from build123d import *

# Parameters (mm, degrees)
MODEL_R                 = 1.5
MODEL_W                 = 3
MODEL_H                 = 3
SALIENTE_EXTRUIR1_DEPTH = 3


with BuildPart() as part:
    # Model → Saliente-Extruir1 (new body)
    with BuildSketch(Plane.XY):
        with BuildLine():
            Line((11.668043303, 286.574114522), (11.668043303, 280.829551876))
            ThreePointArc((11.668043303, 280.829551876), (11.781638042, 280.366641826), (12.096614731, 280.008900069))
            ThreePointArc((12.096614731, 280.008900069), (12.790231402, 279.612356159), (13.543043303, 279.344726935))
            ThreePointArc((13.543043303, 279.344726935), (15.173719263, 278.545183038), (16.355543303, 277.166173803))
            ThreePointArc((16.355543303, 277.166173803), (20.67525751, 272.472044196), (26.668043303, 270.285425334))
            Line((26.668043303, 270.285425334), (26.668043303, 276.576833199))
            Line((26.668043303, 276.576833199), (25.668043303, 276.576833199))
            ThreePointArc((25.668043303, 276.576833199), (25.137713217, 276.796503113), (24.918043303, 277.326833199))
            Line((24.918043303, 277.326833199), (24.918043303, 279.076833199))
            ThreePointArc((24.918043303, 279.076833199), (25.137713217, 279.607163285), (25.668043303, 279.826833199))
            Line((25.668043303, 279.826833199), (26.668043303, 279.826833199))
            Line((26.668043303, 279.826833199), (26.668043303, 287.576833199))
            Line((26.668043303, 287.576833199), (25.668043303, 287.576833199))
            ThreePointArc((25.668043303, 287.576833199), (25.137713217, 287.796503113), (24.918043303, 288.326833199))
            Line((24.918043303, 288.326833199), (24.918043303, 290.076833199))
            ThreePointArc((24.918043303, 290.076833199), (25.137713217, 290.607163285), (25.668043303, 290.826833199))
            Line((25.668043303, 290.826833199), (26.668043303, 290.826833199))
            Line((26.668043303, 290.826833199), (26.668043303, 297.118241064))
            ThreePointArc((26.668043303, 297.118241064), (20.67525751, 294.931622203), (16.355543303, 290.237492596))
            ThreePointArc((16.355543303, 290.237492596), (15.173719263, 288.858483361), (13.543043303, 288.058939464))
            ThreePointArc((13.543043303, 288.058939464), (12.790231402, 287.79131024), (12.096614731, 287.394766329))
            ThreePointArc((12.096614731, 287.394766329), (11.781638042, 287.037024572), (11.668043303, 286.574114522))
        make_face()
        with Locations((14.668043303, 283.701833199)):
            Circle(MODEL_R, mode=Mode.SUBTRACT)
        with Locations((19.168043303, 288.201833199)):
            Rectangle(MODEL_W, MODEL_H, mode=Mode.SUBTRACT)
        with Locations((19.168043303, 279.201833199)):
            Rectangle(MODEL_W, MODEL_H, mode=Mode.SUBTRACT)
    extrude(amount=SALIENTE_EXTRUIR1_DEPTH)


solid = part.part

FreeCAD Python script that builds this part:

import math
import FreeCAD as App
import Part
import Sketcher


def add_polygon(sketch, points):
    """Adds a closed chain of lines whose ends are joined by coincident constraints."""
    first, n = sketch.GeometryCount, len(points)
    for a, b in zip(points, points[1:] + points[:1]):
        sketch.addGeometry(Part.LineSegment(App.Vector(*a, 0), App.Vector(*b, 0)), False)
    for i in range(n):
        sketch.addConstraint(Sketcher.Constraint("Coincident", first + i, 2, first + (i + 1) % n, 1))

doc = App.newDocument("Part")
params = doc.addObject("Spreadsheet::Sheet", "Params")
for row, (alias, value) in enumerate([
    ("sketch1_diameter", "3 mm"),
    ("sketch1_radius", "1 mm"),
    ("sketch1_radius2", "4.5 mm"),
    ("sketch1_radius3", "13.5 mm"),
    ("sketch1_width", "1 mm"),
    ("pad1_length", "3 mm"),
], start=1):
    params.set(f"A{row}", alias)
    params.set(f"B{row}", "=" + value)
    params.setAlias(f"B{row}", alias)

body = doc.addObject("PartDesign::Body", "Body")

sketch1 = body.newObject("Sketcher::SketchObject", "Sketch")
sketch1.AttachmentSupport = (doc.getObject("XY_Plane"), [""])
sketch1.MapMode = "FlatFace"
sketch1.addGeometry(Part.LineSegment(App.Vector(11.7, 286.6, 0), App.Vector(11.7, 280.8, 0)), False)
sketch1.addGeometry(Part.ArcOfCircle(Part.Circle(App.Vector(12.7, 280.8, 0), App.Vector(0, 0, 1), 1), math.radians(180), math.radians(235)), False)
sketch1.addGeometry(Part.ArcOfCircle(Part.Circle(App.Vector(14.7, 283.7, 0), App.Vector(0, 0, 1), 4.5), math.radians(-125), math.radians(-104)), False)
sketch1.addGeometry(Part.ArcOfCircle(Part.Circle(App.Vector(12.4, 275, 0), App.Vector(0, 0, 1), 4.5), math.radians(29), math.radians(76)), False)
sketch1.addGeometry(Part.ArcOfCircle(Part.Circle(App.Vector(28.2, 283.7, 0), App.Vector(0, 0, 1), 13.5), math.radians(-151), math.radians(-96)), False)
sketch1.addGeometry(Part.LineSegment(App.Vector(26.7, 270.3, 0), App.Vector(26.7, 276.6, 0)), False)
sketch1.addGeometry(Part.LineSegment(App.Vector(26.7, 276.6, 0), App.Vector(25.7, 276.6, 0)), False)
sketch1.addGeometry(Part.ArcOfCircle(Part.Circle(App.Vector(25.7, 277.3, 0), App.Vector(0, 0, 1), 0.8), math.radians(180), math.radians(270)), False)
sketch1.addGeometry(Part.LineSegment(App.Vector(24.9, 277.3, 0), App.Vector(24.9, 279.1, 0)), False)
sketch1.addGeometry(Part.ArcOfCircle(Part.Circle(App.Vector(25.7, 279.1, 0), App.Vector(0, 0, 1), 0.8), math.radians(90), math.radians(180)), False)
sketch1.addGeometry(Part.LineSegment(App.Vector(25.7, 279.8, 0), App.Vector(26.7, 279.8, 0)), False)
sketch1.addGeometry(Part.LineSegment(App.Vector(26.7, 279.8, 0), App.Vector(26.7, 287.6, 0)), False)
sketch1.addGeometry(Part.LineSegment(App.Vector(26.7, 287.6, 0), App.Vector(25.7, 287.6, 0)), False)
sketch1.addGeometry(Part.ArcOfCircle(Part.Circle(App.Vector(25.7, 288.3, 0), App.Vector(0, 0, 1), 0.8), math.radians(180), math.radians(270)), False)
sketch1.addGeometry(Part.LineSegment(App.Vector(24.9, 288.3, 0), App.Vector(24.9, 290.1, 0)), False)
sketch1.addGeometry(Part.ArcOfCircle(Part.Circle(App.Vector(25.7, 290.1, 0), App.Vector(0, 0, 1), 0.8), math.radians(90), math.radians(180)), False)
sketch1.addGeometry(Part.LineSegment(App.Vector(25.7, 290.8, 0), App.Vector(26.7, 290.8, 0)), False)
sketch1.addGeometry(Part.LineSegment(App.Vector(26.7, 290.8, 0), App.Vector(26.7, 297.1, 0)), False)
sketch1.addGeometry(Part.ArcOfCircle(Part.Circle(App.Vector(28.2, 283.7, 0), App.Vector(0, 0, 1), 13.5), math.radians(96), math.radians(151)), False)
sketch1.addGeometry(Part.ArcOfCircle(Part.Circle(App.Vector(12.4, 292.4, 0), App.Vector(0, 0, 1), 4.5), math.radians(-76), math.radians(-29)), False)
sketch1.addGeometry(Part.ArcOfCircle(Part.Circle(App.Vector(14.7, 283.7, 0), App.Vector(0, 0, 1), 4.5), math.radians(104), math.radians(125)), False)
sketch1.addGeometry(Part.ArcOfCircle(Part.Circle(App.Vector(12.7, 286.6, 0), App.Vector(0, 0, 1), 1), math.radians(125), math.radians(180)), False)
add_polygon(sketch1, [(20.7, 277.7), (17.7, 277.7), (17.7, 280.7), (20.7, 280.7)])
sketch1.addGeometry(Part.Circle(App.Vector(14.7, 283.7, 0), App.Vector(0, 0, 1), 1.5), False)
add_polygon(sketch1, [(20.7, 286.7), (17.7, 286.7), (17.7, 289.7), (20.7, 289.7)])
sketch1.addConstraint(Sketcher.Constraint("Tangent", 0, 2, 1, 1))
sketch1.addConstraint(Sketcher.Constraint("Tangent", 1, 2, 2, 1))
sketch1.addConstraint(Sketcher.Constraint("Tangent", 2, 2, 3, 2))
sketch1.addConstraint(Sketcher.Constraint("Tangent", 3, 1, 4, 1))
sketch1.addConstraint(Sketcher.Constraint("Coincident", 4, 2, 5, 1))
sketch1.addConstraint(Sketcher.Constraint("Coincident", 5, 2, 6, 1))
sketch1.addConstraint(Sketcher.Constraint("Tangent", 6, 2, 7, 2))
sketch1.addConstraint(Sketcher.Constraint("Tangent", 7, 1, 8, 1))
sketch1.addConstraint(Sketcher.Constraint("Tangent", 8, 2, 9, 2))
sketch1.addConstraint(Sketcher.Constraint("Tangent", 9, 1, 10, 1))
sketch1.addConstraint(Sketcher.Constraint("Coincident", 10, 2, 11, 1))
sketch1.addConstraint(Sketcher.Constraint("Coincident", 11, 2, 12, 1))
sketch1.addConstraint(Sketcher.Constraint("Tangent", 12, 2, 13, 2))
sketch1.addConstraint(Sketcher.Constraint("Tangent", 13, 1, 14, 1))
sketch1.addConstraint(Sketcher.Constraint("Tangent", 14, 2, 15, 2))
sketch1.addConstraint(Sketcher.Constraint("Tangent", 15, 1, 16, 1))
sketch1.addConstraint(Sketcher.Constraint("Coincident", 16, 2, 17, 1))
sketch1.addConstraint(Sketcher.Constraint("Coincident", 17, 2, 18, 1))
sketch1.addConstraint(Sketcher.Constraint("Tangent", 18, 2, 19, 2))
sketch1.addConstraint(Sketcher.Constraint("Tangent", 19, 1, 20, 1))
sketch1.addConstraint(Sketcher.Constraint("Tangent", 20, 2, 21, 1))
sketch1.addConstraint(Sketcher.Constraint("Tangent", 21, 2, 0, 1))
sketch1.addConstraint(Sketcher.Constraint("Vertical", 0))
sketch1.addConstraint(Sketcher.Constraint("Vertical", 5))
sketch1.addConstraint(Sketcher.Constraint("Horizontal", 6))
sketch1.addConstraint(Sketcher.Constraint("Vertical", 8))
sketch1.addConstraint(Sketcher.Constraint("Horizontal", 10))
sketch1.addConstraint(Sketcher.Constraint("Vertical", 11))
sketch1.addConstraint(Sketcher.Constraint("Horizontal", 12))
sketch1.addConstraint(Sketcher.Constraint("Vertical", 14))
sketch1.addConstraint(Sketcher.Constraint("Horizontal", 16))
sketch1.addConstraint(Sketcher.Constraint("Vertical", 17))
sketch1.addConstraint(Sketcher.Constraint("Horizontal", 22))
sketch1.addConstraint(Sketcher.Constraint("Vertical", 23))
sketch1.addConstraint(Sketcher.Constraint("Horizontal", 24))
sketch1.addConstraint(Sketcher.Constraint("Vertical", 25))
sketch1.addConstraint(Sketcher.Constraint("Horizontal", 27))
sketch1.addConstraint(Sketcher.Constraint("Vertical", 28))
sketch1.addConstraint(Sketcher.Constraint("Horizontal", 29))
sketch1.addConstraint(Sketcher.Constraint("Vertical", 30))
sketch1.addConstraint(Sketcher.Constraint("Coincident", 18, 3, 4, 3))
sketch1.addConstraint(Sketcher.Constraint("Coincident", 20, 3, 2, 3))
sketch1.addConstraint(Sketcher.Constraint("Coincident", 26, 3, 2, 3))
sketch1.addConstraint(Sketcher.Constraint("Equal", 2, 3))
sketch1.addConstraint(Sketcher.Constraint("Equal", 7, 9))
sketch1.addConstraint(Sketcher.Constraint("Equal", 9, 13))
sketch1.addConstraint(Sketcher.Constraint("Equal", 13, 15))
sketch1.addConstraint(Sketcher.Constraint("Equal", 4, 18))
sketch1.addConstraint(Sketcher.Constraint("Equal", 3, 19))
sketch1.addConstraint(Sketcher.Constraint("Equal", 19, 20))
sketch1.addConstraint(Sketcher.Constraint("Equal", 1, 21))
sketch1.addConstraint(Sketcher.Constraint("Horizontal", 2, 3, 4, 3))
sketch1.addConstraint(Sketcher.Constraint("Vertical", 9, 3, 13, 3))
sketch1.addConstraint(Sketcher.Constraint("Vertical", 5, 2, 10, 2))
sketch1.addConstraint(Sketcher.Constraint("Vertical", 11, 2, 16, 2))
sketch1.addConstraint(Sketcher.Constraint("Vertical", 23, 2, 27, 2))
sketch1.addConstraint(Sketcher.Constraint("Vertical", 25, 2, 29, 2))
sketch1.addConstraint(Sketcher.Constraint("Equal", 8, 14))
sketch1.addConstraint(Sketcher.Constraint("Equal", 5, 17))
sketch1.addConstraint(Sketcher.Constraint("Equal", 29, 23))
sketch1.addConstraint(Sketcher.Constraint("Equal", 25, 28))
sketch1.addConstraint(Sketcher.Constraint("Diameter", 26, 3.0))
sketch1.addConstraint(Sketcher.Constraint("Radius", 1, 1.0))
sketch1.addConstraint(Sketcher.Constraint("Radius", 2, 4.5))
sketch1.addConstraint(Sketcher.Constraint("Radius", 4, 13.5))
sketch1.addConstraint(Sketcher.Constraint("DistanceX", 6, 2, 6, 1, 1.0))
sketch1.addConstraint(Sketcher.Constraint("DistanceX", 22, 2, 22, 1, 3.0))
sketch1.addConstraint(Sketcher.Constraint("Radius", 7, 0.75))
sketch1.addConstraint(Sketcher.Constraint("DistanceX", 1, 3, 2, 3, 2.0))
sketch1.addConstraint(Sketcher.Constraint("DistanceX", 2, 3, 7, 3, 11.0))
sketch1.addConstraint(Sketcher.Constraint("DistanceY", 7, 3, 13, 3, 11.0))
sketch1.addConstraint(Sketcher.Constraint("DistanceX", 1, 3, 22, 2, 5.0))
sketch1.addConstraint(Sketcher.Constraint("DistanceY", 23, 2, 26, 3, 3.0))
sketch1.addConstraint(Sketcher.Constraint("DistanceY", 2, 3, 27, 2, 3.0))
sketch1.addConstraint(Sketcher.Constraint("DistanceY", 8, 1, 8, 2, 1.75))
sketch1.addConstraint(Sketcher.Constraint("DistanceX", 2, 3, 4, 3, 13.5))
sketch1.addConstraint(Sketcher.Constraint("DistanceY", -1, 1, 1, 2, 280.0089))
sketch1.addConstraint(Sketcher.Constraint("DistanceX", -1, 1, 1, 3, 12.668043))
sketch1.setExpression("Constraints[69]", "Params.sketch1_diameter")
sketch1.setExpression("Constraints[70]", "Params.sketch1_radius")
sketch1.setExpression("Constraints[71]", "Params.sketch1_radius2")
sketch1.setExpression("Constraints[72]", "Params.sketch1_radius3")
sketch1.setExpression("Constraints[73]", "Params.sketch1_width")
pad1 = body.newObject("PartDesign::Pad", "Pad")
pad1.Profile = sketch1
pad1.setExpression("Length", "Params.pad1_length")

doc.recompute()
